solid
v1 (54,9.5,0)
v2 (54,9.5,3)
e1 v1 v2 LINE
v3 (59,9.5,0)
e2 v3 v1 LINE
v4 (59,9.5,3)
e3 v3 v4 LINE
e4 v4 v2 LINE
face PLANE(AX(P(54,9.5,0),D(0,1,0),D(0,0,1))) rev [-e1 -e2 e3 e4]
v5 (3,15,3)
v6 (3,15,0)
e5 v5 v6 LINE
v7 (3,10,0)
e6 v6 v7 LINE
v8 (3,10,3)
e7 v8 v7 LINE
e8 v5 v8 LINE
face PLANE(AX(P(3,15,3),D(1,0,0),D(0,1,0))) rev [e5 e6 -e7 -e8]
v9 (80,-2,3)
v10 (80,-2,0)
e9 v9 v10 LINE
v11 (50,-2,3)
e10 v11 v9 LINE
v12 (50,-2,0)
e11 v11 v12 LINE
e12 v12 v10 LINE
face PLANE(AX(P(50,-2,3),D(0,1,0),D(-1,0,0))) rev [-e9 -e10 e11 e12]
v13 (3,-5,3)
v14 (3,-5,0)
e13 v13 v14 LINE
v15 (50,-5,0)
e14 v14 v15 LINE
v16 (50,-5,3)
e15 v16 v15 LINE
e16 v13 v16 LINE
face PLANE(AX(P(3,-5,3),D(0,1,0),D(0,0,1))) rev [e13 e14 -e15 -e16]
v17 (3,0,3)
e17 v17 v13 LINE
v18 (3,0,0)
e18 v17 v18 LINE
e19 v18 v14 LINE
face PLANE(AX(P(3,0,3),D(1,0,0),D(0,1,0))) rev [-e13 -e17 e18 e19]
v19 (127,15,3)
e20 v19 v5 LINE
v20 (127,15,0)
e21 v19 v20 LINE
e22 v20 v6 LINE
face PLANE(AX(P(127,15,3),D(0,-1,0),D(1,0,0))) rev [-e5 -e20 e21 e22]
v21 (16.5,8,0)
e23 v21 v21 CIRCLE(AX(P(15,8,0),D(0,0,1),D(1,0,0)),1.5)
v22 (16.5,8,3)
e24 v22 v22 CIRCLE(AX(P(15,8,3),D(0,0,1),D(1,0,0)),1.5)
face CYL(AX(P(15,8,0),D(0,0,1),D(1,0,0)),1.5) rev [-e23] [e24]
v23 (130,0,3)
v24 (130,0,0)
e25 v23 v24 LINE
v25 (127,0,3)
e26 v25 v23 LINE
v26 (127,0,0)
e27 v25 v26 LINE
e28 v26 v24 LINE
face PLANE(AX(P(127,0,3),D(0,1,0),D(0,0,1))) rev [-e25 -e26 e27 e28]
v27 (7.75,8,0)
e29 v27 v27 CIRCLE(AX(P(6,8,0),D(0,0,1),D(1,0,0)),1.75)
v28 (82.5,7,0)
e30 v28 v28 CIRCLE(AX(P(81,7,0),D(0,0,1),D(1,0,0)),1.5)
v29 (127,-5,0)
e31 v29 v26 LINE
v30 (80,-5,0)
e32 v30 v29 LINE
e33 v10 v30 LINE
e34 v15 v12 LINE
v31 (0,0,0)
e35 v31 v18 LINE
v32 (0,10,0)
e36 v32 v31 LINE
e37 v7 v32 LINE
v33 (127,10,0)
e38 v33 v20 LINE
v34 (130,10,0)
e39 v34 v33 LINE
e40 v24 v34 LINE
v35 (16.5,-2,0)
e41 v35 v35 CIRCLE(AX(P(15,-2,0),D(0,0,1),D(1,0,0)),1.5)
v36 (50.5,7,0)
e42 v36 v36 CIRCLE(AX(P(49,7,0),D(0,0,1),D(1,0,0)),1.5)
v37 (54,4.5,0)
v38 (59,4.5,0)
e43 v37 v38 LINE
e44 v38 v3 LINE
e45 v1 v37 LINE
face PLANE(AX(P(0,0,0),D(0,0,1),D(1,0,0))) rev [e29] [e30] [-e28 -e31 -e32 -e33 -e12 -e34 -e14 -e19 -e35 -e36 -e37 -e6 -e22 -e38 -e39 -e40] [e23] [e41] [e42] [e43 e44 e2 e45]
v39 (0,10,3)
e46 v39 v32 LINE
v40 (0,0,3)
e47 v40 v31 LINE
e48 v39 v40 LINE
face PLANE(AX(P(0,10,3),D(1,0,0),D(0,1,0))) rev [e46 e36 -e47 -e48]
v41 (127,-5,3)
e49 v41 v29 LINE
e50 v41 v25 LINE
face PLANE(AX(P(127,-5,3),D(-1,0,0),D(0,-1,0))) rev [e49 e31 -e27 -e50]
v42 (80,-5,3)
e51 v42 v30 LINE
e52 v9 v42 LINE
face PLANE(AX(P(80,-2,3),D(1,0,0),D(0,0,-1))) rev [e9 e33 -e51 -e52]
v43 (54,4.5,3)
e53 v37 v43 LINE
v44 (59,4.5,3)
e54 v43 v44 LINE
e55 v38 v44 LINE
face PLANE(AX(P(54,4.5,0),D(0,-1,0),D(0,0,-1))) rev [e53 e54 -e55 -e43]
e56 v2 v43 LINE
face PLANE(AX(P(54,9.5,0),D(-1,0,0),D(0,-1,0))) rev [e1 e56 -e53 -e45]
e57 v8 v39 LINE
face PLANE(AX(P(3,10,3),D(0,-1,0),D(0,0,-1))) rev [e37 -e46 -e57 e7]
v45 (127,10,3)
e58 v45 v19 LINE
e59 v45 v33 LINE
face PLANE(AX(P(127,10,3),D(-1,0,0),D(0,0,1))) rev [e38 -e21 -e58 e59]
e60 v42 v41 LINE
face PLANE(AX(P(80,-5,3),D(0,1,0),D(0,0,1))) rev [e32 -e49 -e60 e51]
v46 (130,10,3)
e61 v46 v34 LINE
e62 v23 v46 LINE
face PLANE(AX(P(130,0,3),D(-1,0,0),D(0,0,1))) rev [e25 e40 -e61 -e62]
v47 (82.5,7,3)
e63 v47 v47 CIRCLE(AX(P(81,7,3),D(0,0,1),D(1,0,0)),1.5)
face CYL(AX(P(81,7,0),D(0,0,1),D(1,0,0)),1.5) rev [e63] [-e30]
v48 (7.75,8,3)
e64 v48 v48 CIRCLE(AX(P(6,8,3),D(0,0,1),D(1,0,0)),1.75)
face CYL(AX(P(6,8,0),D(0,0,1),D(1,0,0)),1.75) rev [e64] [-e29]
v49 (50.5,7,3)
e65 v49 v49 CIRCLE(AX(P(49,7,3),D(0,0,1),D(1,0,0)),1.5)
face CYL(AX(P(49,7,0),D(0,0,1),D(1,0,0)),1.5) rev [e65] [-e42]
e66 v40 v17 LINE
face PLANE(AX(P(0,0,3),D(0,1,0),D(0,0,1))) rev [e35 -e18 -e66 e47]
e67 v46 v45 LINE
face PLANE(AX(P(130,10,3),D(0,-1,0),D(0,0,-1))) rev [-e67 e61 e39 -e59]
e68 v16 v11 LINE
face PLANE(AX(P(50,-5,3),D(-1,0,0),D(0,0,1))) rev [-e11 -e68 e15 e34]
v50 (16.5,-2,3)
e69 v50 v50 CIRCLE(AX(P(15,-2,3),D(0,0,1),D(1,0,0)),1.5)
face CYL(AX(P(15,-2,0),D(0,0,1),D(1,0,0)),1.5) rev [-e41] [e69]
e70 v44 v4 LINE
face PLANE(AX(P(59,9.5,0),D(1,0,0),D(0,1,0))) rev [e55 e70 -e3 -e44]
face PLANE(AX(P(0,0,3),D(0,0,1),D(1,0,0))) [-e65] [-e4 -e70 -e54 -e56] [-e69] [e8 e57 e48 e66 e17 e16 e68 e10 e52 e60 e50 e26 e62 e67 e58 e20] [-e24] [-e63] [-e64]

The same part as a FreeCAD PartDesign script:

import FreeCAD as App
import Part
import Sketcher
Q = App.Units.Quantity

doc = App.newDocument("Part")
body = doc.addObject("PartDesign::Body", "Body")

sketch1 = doc.addObject("Sketcher::SketchObject", "Sketch")
body.addObject(sketch1)
sketch1.AttachmentSupport = (doc.XY_Plane, [""])
sketch1.MapMode = "FlatFace"
sketch1.addGeometry([
    Part.LineSegment(App.Vector(0, 0, 0), App.Vector(3, 0, 0)),
    Part.LineSegment(App.Vector(3, 0, 0), App.Vector(3, -5, 0)),
    Part.LineSegment(App.Vector(3, -5, 0), App.Vector(50, -5, 0)),
    Part.LineSegment(App.Vector(50, -5, 0), App.Vector(50, -2, 0)),
    Part.LineSegment(App.Vector(50, -2, 0), App.Vector(80, -2, 0)),
    Part.LineSegment(App.Vector(80, -2, 0), App.Vector(80, -5, 0)),
    Part.LineSegment(App.Vector(80, -5, 0), App.Vector(127, -5, 0)),
    Part.LineSegment(App.Vector(127, -5, 0), App.Vector(127, 0, 0)),
    Part.LineSegment(App.Vector(127, 0, 0), App.Vector(130, 0, 0)),
    Part.LineSegment(App.Vector(130, 0, 0), App.Vector(130, 10, 0)),
    Part.LineSegment(App.Vector(130, 10, 0), App.Vector(127, 10, 0)),
    Part.LineSegment(App.Vector(127, 10, 0), App.Vector(127, 15, 0)),
    Part.LineSegment(App.Vector(127, 15, 0), App.Vector(3, 15, 0)),
    Part.LineSegment(App.Vector(3, 15, 0), App.Vector(3, 10, 0)),
    Part.LineSegment(App.Vector(3, 10, 0), App.Vector(0, 10, 0)),
    Part.LineSegment(App.Vector(0, 10, 0), App.Vector(0, 0, 0)),
], False)
sketch1.addConstraint([
    Sketcher.Constraint("Coincident", 0, 2, 1, 1),
    Sketcher.Constraint("Coincident", 1, 2, 2, 1),
    Sketcher.Constraint("Coincident", 2, 2, 3, 1),
    Sketcher.Constraint("Coincident", 3, 2, 4, 1),
    Sketcher.Constraint("Coincident", 4, 2, 5, 1),
    Sketcher.Constraint("Coincident", 5, 2, 6, 1),
    Sketcher.Constraint("Coincident", 6, 2, 7, 1),
    Sketcher.Constraint("Coincident", 7, 2, 8, 1),
    Sketcher.Constraint("Coincident", 8, 2, 9, 1),
    Sketcher.Constraint("Coincident", 9, 2, 10, 1),
    Sketcher.Constraint("Coincident", 10, 2, 11, 1),
    Sketcher.Constraint("Coincident", 11, 2, 12, 1),
    Sketcher.Constraint("Coincident", 12, 2, 13, 1),
    Sketcher.Constraint("Coincident", 13, 2, 14, 1),
    Sketcher.Constraint("Coincident", 14, 2, 15, 1),
    Sketcher.Constraint("Coincident", 15, 2, 0, 1),
    Sketcher.Constraint("Horizontal", 0),
    Sketcher.Constraint("Vertical", 1),
    Sketcher.Constraint("Horizontal", 2),
    Sketcher.Constraint("Vertical", 3),
    Sketcher.Constraint("Horizontal", 4),
    Sketcher.Constraint("Vertical", 5),
    Sketcher.Constraint("Horizontal", 6),
    Sketcher.Constraint("Vertical", 7),
    Sketcher.Constraint("Horizontal", 8),
    Sketcher.Constraint("Vertical", 9),
    Sketcher.Constraint("Horizontal", 10),
    Sketcher.Constraint("Vertical", 11),
    Sketcher.Constraint("Horizontal", 12),
    Sketcher.Constraint("Vertical", 13),
    Sketcher.Constraint("Horizontal", 14),
    Sketcher.Constraint("Vertical", 15),
    Sketcher.Constraint("Coincident", 15, 2, -1, 1),
    Sketcher.Constraint("PointOnObject", 7, 2, -1),
    Sketcher.Constraint("Horizontal", 2, 2, 5, 2),
    Sketcher.Constraint("Horizontal", 10, 2, 13, 2),
    Sketcher.Constraint("Vertical", 7, 2, 10, 2),
    Sketcher.Constraint("Vertical", 1, 2, 12, 2),
    Sketcher.Constraint("Equal", 2, 6),
    Sketcher.Constraint("Equal", 0, 8),
    Sketcher.Constraint("Equal", 14, 3),
    Sketcher.Constraint("Equal", 7, 11),
    Sketcher.Constraint("DistanceX", 0, 1, 0, 2, Q("3 mm")),
    Sketcher.Constraint("DistanceX", 2, 1, 2, 2, Q("47 mm")),
    Sketcher.Constraint("DistanceX", 4, 1, 4, 2, Q("30 mm")),
    Sketcher.Constraint("DistanceY", 1, 2, 1, 1, Q("5 mm")),
    Sketcher.Constraint("DistanceY", 9, 1, 9, 2, Q("10 mm")),
])
pad1 = doc.addObject("PartDesign::Pad", "Pad")
body.addObject(pad1)
pad1.Profile = sketch1
pad1.Length = 3

sketch2 = doc.addObject("Sketcher::SketchObject", "Sketch001")
body.addObject(sketch2)
sketch2.AttachmentSupport = (doc.XY_Plane, [""])
sketch2.MapMode = "FlatFace"
sketch2.AttachmentOffset = App.Placement(App.Vector(0, 0, 3), App.Rotation())
sketch2.addGeometry([
    Part.Circle(App.Vector(15, 8, 0), App.Vector(0, 0, 1), 1.5),
    Part.Circle(App.Vector(15, -2, 0), App.Vector(0, 0, 1), 1.5),
    Part.Circle(App.Vector(6, 8, 0), App.Vector(0, 0, 1), 1.75),
], False)
sketch2.addConstraint([
    Sketcher.Constraint("Equal", 0, 1),
    Sketcher.Constraint("Horizontal", 0, 3, 2, 3),
    Sketcher.Constraint("Vertical", 0, 3, 1, 3),
    Sketcher.Constraint("Diameter", 0, Q("3 mm")),
    Sketcher.Constraint("Diameter", 2, Q("3.5 mm")),
    Sketcher.Constraint("DistanceX", -1, 1, 0, 3, Q("15 mm")),
    Sketcher.Constraint("DistanceY", -1, 1, 0, 3, Q("8 mm")),
    Sketcher.Constraint("DistanceY", 1, 3, -1, 1, Q("2 mm")),
    Sketcher.Constraint("DistanceX", -1, 1, 2, 3, Q("6 mm")),
])
pocket1 = doc.addObject("PartDesign::Pocket", "Pocket")
body.addObject(pocket1)
pocket1.Profile = sketch2
pocket1.Type = "ThroughAll"

sketch3 = doc.addObject("Sketcher::SketchObject", "Sketch002")
body.addObject(sketch3)
sketch3.AttachmentSupport = (doc.XY_Plane, [""])
sketch3.MapMode = "FlatFace"
sketch3.AttachmentOffset = App.Placement(App.Vector(0, 0, 3), App.Rotation())
sketch3.addGeometry([
    Part.Circle(App.Vector(49, 7, 0), App.Vector(0, 0, 1), 1.5),
    Part.Circle(App.Vector(81, 7, 0), App.Vector(0, 0, 1), 1.5),
    Part.LineSegment(App.Vector(54, 9.5, 0), App.Vector(54, 4.5, 0)),
    Part.LineSegment(App.Vector(54, 4.5, 0), App.Vector(59, 4.5, 0)),
    Part.LineSegment(App.Vector(59, 4.5, 0), App.Vector(59, 9.5, 0)),
    Part.LineSegment(App.Vector(59, 9.5, 0), App.Vector(54, 9.5, 0)),
], False)
sketch3.addConstraint([
    Sketcher.Constraint("Coincident", 2, 2, 3, 1),
    Sketcher.Constraint("Coincident", 3, 2, 4, 1),
    Sketcher.Constraint("Coincident", 4, 2, 5, 1),
    Sketcher.Constraint("Coincident", 5, 2, 2, 1),
    Sketcher.Constraint("Vertical", 2),
    Sketcher.Constraint("Horizontal", 3),
    Sketcher.Constraint("Vertical", 4),
    Sketcher.Constraint("Horizontal", 5),
    Sketcher.Constraint("Equal", 0, 1),
    Sketcher.Constraint("Horizontal", 0, 3, 1, 3),
    Sketcher.Constraint("Equal", 5, 2),
    Sketcher.Constraint("Diameter", 0, Q("3 mm")),
    Sketcher.Constraint("DistanceX", 3, 1, 3, 2, Q("5 mm")),
    Sketcher.Constraint("DistanceX", -1, 1, 0, 3, Q("49 mm")),
    Sketcher.Constraint("DistanceY", -1, 1, 0, 3, Q("7 mm")),
    Sketcher.Constraint("DistanceX", -1, 1, 1, 3, Q("81 mm")),
    Sketcher.Constraint("DistanceX", -1, 1, 2, 2, Q("54 mm")),
    Sketcher.Constraint("DistanceY", -1, 1, 2, 2, Q("4.5 mm")),
])
pocket2 = doc.addObject("PartDesign::Pocket", "Pocket001")
body.addObject(pocket2)
pocket2.Profile = sketch3
pocket2.Type = "ThroughAll"

doc.recompute()
